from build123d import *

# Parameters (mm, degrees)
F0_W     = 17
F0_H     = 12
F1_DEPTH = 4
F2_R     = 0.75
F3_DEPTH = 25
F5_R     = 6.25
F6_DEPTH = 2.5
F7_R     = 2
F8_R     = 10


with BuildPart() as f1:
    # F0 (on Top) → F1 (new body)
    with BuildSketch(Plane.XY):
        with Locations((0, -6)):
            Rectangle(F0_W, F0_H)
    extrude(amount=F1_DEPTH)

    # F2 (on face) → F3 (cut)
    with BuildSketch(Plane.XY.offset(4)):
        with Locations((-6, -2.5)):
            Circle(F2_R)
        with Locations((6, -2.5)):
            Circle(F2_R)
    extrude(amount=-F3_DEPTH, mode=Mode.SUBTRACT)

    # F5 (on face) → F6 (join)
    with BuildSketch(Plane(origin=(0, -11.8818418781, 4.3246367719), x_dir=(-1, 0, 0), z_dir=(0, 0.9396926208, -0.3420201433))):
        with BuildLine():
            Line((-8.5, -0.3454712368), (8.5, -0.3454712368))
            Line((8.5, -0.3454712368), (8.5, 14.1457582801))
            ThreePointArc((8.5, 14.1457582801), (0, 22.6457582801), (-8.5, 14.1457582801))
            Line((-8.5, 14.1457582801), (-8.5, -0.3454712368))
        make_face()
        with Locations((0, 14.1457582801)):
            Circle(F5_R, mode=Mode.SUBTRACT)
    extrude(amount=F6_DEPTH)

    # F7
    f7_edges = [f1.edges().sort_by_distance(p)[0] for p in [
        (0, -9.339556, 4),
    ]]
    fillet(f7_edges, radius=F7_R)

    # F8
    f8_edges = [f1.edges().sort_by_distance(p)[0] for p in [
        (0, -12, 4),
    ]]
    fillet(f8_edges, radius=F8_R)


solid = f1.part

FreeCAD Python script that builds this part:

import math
import FreeCAD as App
import Part
import Sketcher

V = App.Vector


def edges_at(feature, points):
    """Names of the edges that pass closest to the given points."""
    edges = feature.Shape.Edges
    near = lambda p: min(range(len(edges)), key=lambda i: edges[i].distToShape(Part.Vertex(*p))[0])
    return sorted({f"Edge{near(p) + 1}" for p in points})


def add_polygon(sketch, points):
    """Adds a closed chain of lines whose ends are joined by coincident constraints."""
    first, n = sketch.GeometryCount, len(points)
    for a, b in zip(points, points[1:] + points[:1]):
        sketch.addGeometry(Part.LineSegment(App.Vector(*a, 0), App.Vector(*b, 0)), False)
    for i in range(n):
        sketch.addConstraint(Sketcher.Constraint("Coincident", first + i, 2, first + (i + 1) % n, 1))

doc = App.newDocument("Part")
body = doc.addObject("PartDesign::Body", "Body")

# Sketch on XY plane
sketch1 = doc.addObject("Sketcher::SketchObject", "Sketch")
body.addObject(sketch1)
sketch1.AttachmentSupport = (doc.XY_Plane, [""])
sketch1.MapMode = "FlatFace"
add_polygon(sketch1, [(-8, 0), (-8, -12), (8, -12), (8, 0)])  # lines 0-3
sketch1.addConstraint([
    Sketcher.Constraint("Vertical", 0),
    Sketcher.Constraint("Horizontal", 1),
    Sketcher.Constraint("Vertical", 2),
    Sketcher.Constraint("Horizontal", 3),
    Sketcher.Constraint("Symmetric", 2, 2, 3, 2, -1, 1),
    Sketcher.Constraint("DistanceX", 1, 1, 1, 2, 17.0),
    Sketcher.Constraint("DistanceY", 0, 2, 0, 1, 12.0),
])
pad1 = doc.addObject("PartDesign::Pad", "Pad")
body.addObject(pad1)
pad1.Profile = sketch1
pad1.Length = 4

# Sketch on XY plane
sketch2 = doc.addObject("Sketcher::SketchObject", "Sketch001")
body.addObject(sketch2)
sketch2.AttachmentSupport = (doc.XY_Plane, [""])
sketch2.MapMode = "FlatFace"
sketch2.AttachmentOffset = App.Placement(V(0, 0, 4), App.Rotation())
sketch2.addGeometry([
    Part.Circle(V(-6, -2.5, 0), V(0, 0, 1), 0.8),
    Part.Circle(V(6, -2.5, 0), V(0, 0, 1), 0.8),
], False)
sketch2.addConstraint([
    Sketcher.Constraint("Equal", 0, 1),
    Sketcher.Constraint("Symmetric", 0, 3, 1, 3, -2),
    Sketcher.Constraint("Diameter", 0, 1.5),
    Sketcher.Constraint("DistanceX", 0, 3, -1, 1, 6.0),
    Sketcher.Constraint("DistanceY", 0, 3, -1, 1, 2.5),
])
pocket1 = doc.addObject("PartDesign::Pocket", "Pocket")
body.addObject(pocket1)
pocket1.Profile = sketch2
pocket1.Length = 25

# Sketch on an angled plane
sketch3 = doc.addObject("Sketcher::SketchObject", "Sketch002")
body.addObject(sketch3)
sketch3.Placement = App.Placement(V(0, -11.881842, 4.324637), App.Rotation(V(-1, 0, 0), V(0, 0.342020143, 0.939692621), V(0, 0.939692621, -0.342020143), "ZXY"))
sketch3.addGeometry([
    Part.LineSegment(V(-8, 0, 0), V(8, 0, 0)),  # 0
    Part.LineSegment(V(8, 0, 0), V(8, 14, 0)),  # 1
    Part.ArcOfCircle(Part.Circle(V(0, 14, 0), V(0, 0, 1), 8), math.radians(0), math.radians(180)),  # 2
    Part.LineSegment(V(-8, 14, 0), V(-8, 0, 0)),  # 3
    Part.Circle(V(0, 14, 0), V(0, 0, 1), 6),  # 4
], False)
sketch3.addConstraint([
    Sketcher.Constraint("Coincident", 0, 2, 1, 1),
    Sketcher.Constraint("Tangent", 1, 2, 2, 1),
    Sketcher.Constraint("Tangent", 2, 2, 3, 1),
    Sketcher.Constraint("Coincident", 3, 2, 0, 1),
    Sketcher.Constraint("Horizontal", 0),
    Sketcher.Constraint("Vertical", 1),
    Sketcher.Constraint("Vertical", 3),
    Sketcher.Constraint("Coincident", 4, 3, 2, 3),
    Sketcher.Constraint("PointOnObject", 2, 3, -2),
    Sketcher.Constraint("Diameter", 4, 12.5),
    Sketcher.Constraint("Radius", 2, 8.5),
    Sketcher.Constraint("DistanceY", 1, 1, 1, 2, 14.49123),
    Sketcher.Constraint("DistanceY", -1, 1, 2, 3, 14.145758),
])
pad2 = doc.addObject("PartDesign::Pad", "Pad001")
body.addObject(pad2)
pad2.Profile = sketch3
pad2.Length = 2.5
doc.recompute()

fillet = doc.addObject("PartDesign::Fillet", "Fillet")
body.addObject(fillet)
fillet.Base = (pad2, edges_at(pad2, [(0, -9.34, 4)]))
fillet.Radius = 2
doc.recompute()

fillet2 = doc.addObject("PartDesign::Fillet", "Fillet001")
body.addObject(fillet2)
fillet2.Base = (fillet, edges_at(fillet, [(0, -12, 4)]))
fillet2.Radius = 10

doc.recompute()
